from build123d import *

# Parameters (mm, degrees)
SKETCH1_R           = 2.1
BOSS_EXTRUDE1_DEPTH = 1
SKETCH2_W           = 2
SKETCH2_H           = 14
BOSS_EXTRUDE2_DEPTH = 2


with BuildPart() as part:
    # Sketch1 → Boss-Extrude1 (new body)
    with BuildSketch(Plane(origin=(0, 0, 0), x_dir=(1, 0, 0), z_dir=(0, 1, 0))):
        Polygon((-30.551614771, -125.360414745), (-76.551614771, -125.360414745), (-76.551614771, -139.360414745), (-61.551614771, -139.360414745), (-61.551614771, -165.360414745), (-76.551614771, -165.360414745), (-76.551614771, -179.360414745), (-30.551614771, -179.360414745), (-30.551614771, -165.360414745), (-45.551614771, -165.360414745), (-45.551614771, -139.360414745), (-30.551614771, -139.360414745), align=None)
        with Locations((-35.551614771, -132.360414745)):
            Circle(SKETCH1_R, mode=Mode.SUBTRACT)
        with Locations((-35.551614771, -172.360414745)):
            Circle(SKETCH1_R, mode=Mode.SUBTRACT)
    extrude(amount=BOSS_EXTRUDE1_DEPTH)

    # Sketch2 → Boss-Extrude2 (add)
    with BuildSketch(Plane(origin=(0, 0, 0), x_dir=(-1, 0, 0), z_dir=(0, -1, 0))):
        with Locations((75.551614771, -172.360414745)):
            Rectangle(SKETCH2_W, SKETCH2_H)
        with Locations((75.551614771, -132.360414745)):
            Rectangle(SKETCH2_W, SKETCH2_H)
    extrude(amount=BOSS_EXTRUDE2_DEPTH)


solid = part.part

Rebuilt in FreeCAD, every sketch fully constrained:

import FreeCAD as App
import Part
import Sketcher
Q = App.Units.Quantity


def add_polygon(sketch, points):
    """Adds a closed chain of lines whose ends are joined by coincident constraints."""
    first, n = sketch.GeometryCount, len(points)
    for a, b in zip(points, points[1:] + points[:1]):
        sketch.addGeometry(Part.LineSegment(App.Vector(*a, 0), App.Vector(*b, 0)), False)
    for i in range(n):
        sketch.addConstraint(Sketcher.Constraint("Coincident", first + i, 2, first + (i + 1) % n, 1))

doc = App.newDocument("Part")
body = doc.addObject("PartDesign::Body", "Body")

# Sketch on XZ plane
sketch1 = doc.addObject("Sketcher::SketchObject", "Sketch")
body.addObject(sketch1)
sketch1.AttachmentSupport = (doc.XZ_Plane, [""])
sketch1.MapMode = "FlatFace"
add_polygon(sketch1, [(-30.6, 125.4), (-76.6, 125.4), (-76.6, 139.4), (-61.6, 139.4), (-61.6, 165.4), (-76.6, 165.4), (-76.6, 179.4), (-30.6, 179.4), (-30.6, 165.4), (-45.6, 165.4), (-45.6, 139.4), (-30.6, 139.4)])  # lines 0-11
sketch1.addGeometry(Part.Circle(App.Vector(-35.6, 172.4, 0), App.Vector(0, 0, 1), 2.1), False)  # 12
sketch1.addGeometry(Part.Circle(App.Vector(-35.6, 132.4, 0), App.Vector(0, 0, 1), 2.1), False)  # 13
sketch1.addConstraint([
    Sketcher.Constraint("Horizontal", 0),
    Sketcher.Constraint("Vertical", 1),
    Sketcher.Constraint("Horizontal", 2),
    Sketcher.Constraint("Vertical", 3),
    Sketcher.Constraint("Horizontal", 4),
    Sketcher.Constraint("Vertical", 5),
    Sketcher.Constraint("Horizontal", 6),
    Sketcher.Constraint("Vertical", 7),
    Sketcher.Constraint("Horizontal", 8),
    Sketcher.Constraint("Vertical", 9),
    Sketcher.Constraint("Horizontal", 10),
    Sketcher.Constraint("Vertical", 11),
    Sketcher.Constraint("Equal", 12, 13),
    Sketcher.Constraint("Horizontal", 4, 2, 7, 2),
    Sketcher.Constraint("Horizontal", 2, 2, 9, 2),
    Sketcher.Constraint("Vertical", 12, 3, 13, 3),
    Sketcher.Constraint("Vertical", 1, 2, 4, 2),
    Sketcher.Constraint("Vertical", 7, 2, 10, 2),
    Sketcher.Constraint("Equal", 4, 8),
    Sketcher.Constraint("Equal", 1, 5),
    Sketcher.Constraint("Diameter", 12, Q("4.2 mm")),
    Sketcher.Constraint("DistanceX", 0, 2, 0, 1, Q("46 mm")),
    Sketcher.Constraint("DistanceX", 2, 1, 2, 2, Q("15 mm")),
    Sketcher.Constraint("DistanceY", 1, 1, 1, 2, Q("14 mm")),
    Sketcher.Constraint("DistanceY", 3, 1, 3, 2, Q("26 mm")),
    Sketcher.Constraint("DistanceY", 13, 3, 12, 3, Q("40 mm")),
    Sketcher.Constraint("DistanceX", 0, 2, 13, 3, Q("41 mm")),
    Sketcher.Constraint("DistanceY", 0, 2, 13, 3, Q("7 mm")),
    Sketcher.Constraint("DistanceX", 12, 3, -1, 1, Q("35.551615 mm")),
    Sketcher.Constraint("DistanceY", -1, 1, 12, 3, Q("172.360415 mm")),
])
pad1 = doc.addObject("PartDesign::Pad", "Pad")
body.addObject(pad1)
pad1.Profile = sketch1
pad1.Length = 1
pad1.Reversed = True

# Sketch on XZ plane
sketch2 = doc.addObject("Sketcher::SketchObject", "Sketch001")
body.addObject(sketch2)
sketch2.AttachmentSupport = (doc.XZ_Plane, [""])
sketch2.MapMode = "FlatFace"
add_polygon(sketch2, [(-74.6, 165.4), (-74.6, 179.4), (-76.6, 179.4), (-76.6, 165.4)])  # lines 0-3
add_polygon(sketch2, [(-74.6, 125.4), (-74.6, 139.4), (-76.6, 139.4), (-76.6, 125.4)])  # lines 4-7
sketch2.addConstraint([
    Sketcher.Constraint("Vertical", 0),
    Sketcher.Constraint("Horizontal", 1),
    Sketcher.Constraint("Vertical", 2),
    Sketcher.Constraint("Horizontal", 3),
    Sketcher.Constraint("Vertical", 4),
    Sketcher.Constraint("Horizontal", 5),
    Sketcher.Constraint("Vertical", 6),
    Sketcher.Constraint("Horizontal", 7),
    Sketcher.Constraint("Vertical", 3, 2, 4, 2),
    Sketcher.Constraint("Vertical", 2, 2, 5, 2),
    Sketcher.Constraint("Equal", 2, 4),
    Sketcher.Constraint("DistanceX", 1, 2, 1, 1, Q("2 mm")),
    Sketcher.Constraint("DistanceY", 0, 1, 0, 2, Q("14 mm")),
    Sketcher.Constraint("DistanceY", 4, 2, 3, 2, Q("26 mm")),
    Sketcher.Constraint("DistanceX", 0, 2, -1, 1, Q("74.551615 mm")),
    Sketcher.Constraint("DistanceY", -1, 1, 0, 2, Q("179.360415 mm")),
])
pad2 = doc.addObject("PartDesign::Pad", "Pad001")
body.addObject(pad2)
pad2.Profile = sketch2
pad2.Length = 2

doc.recompute()
